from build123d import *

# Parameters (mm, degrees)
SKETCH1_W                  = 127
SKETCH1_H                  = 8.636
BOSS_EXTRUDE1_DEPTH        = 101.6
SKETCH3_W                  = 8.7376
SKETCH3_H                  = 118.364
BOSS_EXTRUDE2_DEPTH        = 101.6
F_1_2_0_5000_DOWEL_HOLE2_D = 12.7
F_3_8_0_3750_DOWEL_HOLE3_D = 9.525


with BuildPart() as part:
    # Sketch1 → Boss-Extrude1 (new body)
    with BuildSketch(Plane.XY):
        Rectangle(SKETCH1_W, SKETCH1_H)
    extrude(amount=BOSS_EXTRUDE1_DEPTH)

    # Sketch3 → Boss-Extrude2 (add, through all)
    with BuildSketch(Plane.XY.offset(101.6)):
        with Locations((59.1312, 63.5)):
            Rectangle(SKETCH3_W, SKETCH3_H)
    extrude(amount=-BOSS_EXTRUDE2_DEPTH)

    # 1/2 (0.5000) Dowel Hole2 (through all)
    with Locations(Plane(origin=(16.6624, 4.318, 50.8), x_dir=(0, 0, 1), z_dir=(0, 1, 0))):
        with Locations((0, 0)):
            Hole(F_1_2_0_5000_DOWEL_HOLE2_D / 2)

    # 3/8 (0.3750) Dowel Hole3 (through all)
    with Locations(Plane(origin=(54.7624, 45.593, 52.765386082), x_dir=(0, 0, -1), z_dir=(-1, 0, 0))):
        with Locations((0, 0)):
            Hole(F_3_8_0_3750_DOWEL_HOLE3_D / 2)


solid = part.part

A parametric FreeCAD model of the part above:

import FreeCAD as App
import Part
import Sketcher
from FreeCAD import Vector
Q = App.Units.Quantity

doc = App.newDocument("Part")
body = doc.addObject("PartDesign::Body", "Body")

# Sketch on XY plane
sketch1 = doc.addObject("Sketcher::SketchObject", "Sketch")
body.addObject(sketch1)
sketch1.AttachmentSupport = (doc.XY_Plane, [""])
sketch1.MapMode = "FlatFace"
sketch1.addGeometry(Part.LineSegment(Vector(-64, 4, 0), Vector(-64, -4, 0)), False)
sketch1.addGeometry(Part.LineSegment(Vector(-64, -4, 0), Vector(64, -4, 0)), False)
sketch1.addGeometry(Part.LineSegment(Vector(64, -4, 0), Vector(64, 4, 0)), False)
sketch1.addGeometry(Part.LineSegment(Vector(64, 4, 0), Vector(-64, 4, 0)), False)
sketch1.addConstraint(Sketcher.Constraint("Coincident", 0, 2, 1, 1))
sketch1.addConstraint(Sketcher.Constraint("Coincident", 1, 2, 2, 1))
sketch1.addConstraint(Sketcher.Constraint("Coincident", 2, 2, 3, 1))
sketch1.addConstraint(Sketcher.Constraint("Coincident", 3, 2, 0, 1))
sketch1.addConstraint(Sketcher.Constraint("Vertical", 0))
sketch1.addConstraint(Sketcher.Constraint("Horizontal", 1))
sketch1.addConstraint(Sketcher.Constraint("Vertical", 2))
sketch1.addConstraint(Sketcher.Constraint("Horizontal", 3))
sketch1.addConstraint(Sketcher.Constraint("Symmetric", 0, 2, 2, 2, -1, 1))
sketch1.addConstraint(Sketcher.Constraint("DistanceX", 1, 1, 1, 2, Q("5 in")))
sketch1.addConstraint(Sketcher.Constraint("DistanceY", 0, 2, 0, 1, Q("0.34 in")))
pad1 = doc.addObject("PartDesign::Pad", "Pad")
body.addObject(pad1)
pad1.Profile = sketch1
pad1.Length = Q("4 in")

# Sketch on XY plane
sketch2 = doc.addObject("Sketcher::SketchObject", "Sketch001")
body.addObject(sketch2)
sketch2.AttachmentSupport = (doc.XY_Plane, [""])
sketch2.MapMode = "FlatFace"
sketch2.AttachmentOffset = App.Placement(Vector(0, 0, 4 * 25.4), App.Rotation())
sketch2.addGeometry(Part.LineSegment(Vector(55, 123, 0), Vector(55, 4, 0)), False)
sketch2.addGeometry(Part.LineSegment(Vector(55, 4, 0), Vector(64, 4, 0)), False)
sketch2.addGeometry(Part.LineSegment(Vector(64, 4, 0), Vector(64, 123, 0)), False)
sketch2.addGeometry(Part.LineSegment(Vector(64, 123, 0), Vector(55, 123, 0)), False)
sketch2.addConstraint(Sketcher.Constraint("Coincident", 0, 2, 1, 1))
sketch2.addConstraint(Sketcher.Constraint("Coincident", 1, 2, 2, 1))
sketch2.addConstraint(Sketcher.Constraint("Coincident", 2, 2, 3, 1))
sketch2.addConstraint(Sketcher.Constraint("Coincident", 3, 2, 0, 1))
sketch2.addConstraint(Sketcher.Constraint("Vertical", 0))
sketch2.addConstraint(Sketcher.Constraint("Horizontal", 1))
sketch2.addConstraint(Sketcher.Constraint("Vertical", 2))
sketch2.addConstraint(Sketcher.Constraint("Horizontal", 3))
sketch2.addConstraint(Sketcher.Constraint("DistanceY", 0, 2, 0, 1, Q("4.66 in")))
sketch2.addConstraint(Sketcher.Constraint("DistanceX", -1, 1, 1, 2, Q("2.5 in")))
sketch2.addConstraint(Sketcher.Constraint("DistanceX", 1, 1, 1, 2, Q("0.344 in")))
sketch2.addConstraint(Sketcher.Constraint("DistanceY", -1, 1, 0, 2, Q("0.17 in")))
pad2 = doc.addObject("PartDesign::Pad", "Pad001")
body.addObject(pad2)
pad2.Profile = sketch2
pad2.Length = Q("4 in")
pad2.Reversed = True

# Sketch on XZ plane
sketch3 = doc.addObject("Sketcher::SketchObject", "Sketch002")
body.addObject(sketch3)
sketch3.AttachmentSupport = (doc.XZ_Plane, [""])
sketch3.MapMode = "FlatFace"
sketch3.AttachmentOffset = App.Placement(Vector(0, 0, -0.17 * 25.4), App.Rotation())
sketch3.addGeometry(Part.Circle(Vector(17, 51, 0), Vector(0, 0, 1), 6), False)
sketch3.addConstraint(Sketcher.Constraint("Diameter", 0, Q("0.5 in")))
sketch3.addConstraint(Sketcher.Constraint("DistanceY", -1, 1, 0, 3, Q("2 in")))
sketch3.addConstraint(Sketcher.Constraint("DistanceX", -1, 1, 0, 3, Q("0.656 in")))
doc.recompute()
hole = doc.addObject("PartDesign::Hole", "Hole")
body.addObject(hole)
hole.Profile = sketch3
hole.ThreadType = "None"
hole.Diameter = Q("0.5 in")
hole.DepthType = "ThroughAll"
hole.Reversed = True

# Sketch on YZ plane
sketch4 = doc.addObject("Sketcher::SketchObject", "Sketch003")
body.addObject(sketch4)
sketch4.AttachmentSupport = (doc.YZ_Plane, [""])
sketch4.MapMode = "FlatFace"
sketch4.AttachmentOffset = App.Placement(Vector(0, 0, 2.156 * 25.4), App.Rotation())
sketch4.addGeometry(Part.Circle(Vector(45.6, 52.8, 0), Vector(0, 0, 1), 4.8), False)
sketch4.addConstraint(Sketcher.Constraint("Diameter", 0, Q("0.375 in")))
sketch4.addConstraint(Sketcher.Constraint("DistanceX", -1, 1, 0, 3, Q("1.795 in")))
sketch4.addConstraint(Sketcher.Constraint("DistanceY", -1, 1, 0, 3, 52.765386))
doc.recompute()
hole2 = doc.addObject("PartDesign::Hole", "Hole001")
body.addObject(hole2)
hole2.Profile = sketch4
hole2.ThreadType = "None"
hole2.Diameter = Q("0.375 in")
hole2.DepthType = "ThroughAll"
hole2.Reversed = True

doc.recompute()
